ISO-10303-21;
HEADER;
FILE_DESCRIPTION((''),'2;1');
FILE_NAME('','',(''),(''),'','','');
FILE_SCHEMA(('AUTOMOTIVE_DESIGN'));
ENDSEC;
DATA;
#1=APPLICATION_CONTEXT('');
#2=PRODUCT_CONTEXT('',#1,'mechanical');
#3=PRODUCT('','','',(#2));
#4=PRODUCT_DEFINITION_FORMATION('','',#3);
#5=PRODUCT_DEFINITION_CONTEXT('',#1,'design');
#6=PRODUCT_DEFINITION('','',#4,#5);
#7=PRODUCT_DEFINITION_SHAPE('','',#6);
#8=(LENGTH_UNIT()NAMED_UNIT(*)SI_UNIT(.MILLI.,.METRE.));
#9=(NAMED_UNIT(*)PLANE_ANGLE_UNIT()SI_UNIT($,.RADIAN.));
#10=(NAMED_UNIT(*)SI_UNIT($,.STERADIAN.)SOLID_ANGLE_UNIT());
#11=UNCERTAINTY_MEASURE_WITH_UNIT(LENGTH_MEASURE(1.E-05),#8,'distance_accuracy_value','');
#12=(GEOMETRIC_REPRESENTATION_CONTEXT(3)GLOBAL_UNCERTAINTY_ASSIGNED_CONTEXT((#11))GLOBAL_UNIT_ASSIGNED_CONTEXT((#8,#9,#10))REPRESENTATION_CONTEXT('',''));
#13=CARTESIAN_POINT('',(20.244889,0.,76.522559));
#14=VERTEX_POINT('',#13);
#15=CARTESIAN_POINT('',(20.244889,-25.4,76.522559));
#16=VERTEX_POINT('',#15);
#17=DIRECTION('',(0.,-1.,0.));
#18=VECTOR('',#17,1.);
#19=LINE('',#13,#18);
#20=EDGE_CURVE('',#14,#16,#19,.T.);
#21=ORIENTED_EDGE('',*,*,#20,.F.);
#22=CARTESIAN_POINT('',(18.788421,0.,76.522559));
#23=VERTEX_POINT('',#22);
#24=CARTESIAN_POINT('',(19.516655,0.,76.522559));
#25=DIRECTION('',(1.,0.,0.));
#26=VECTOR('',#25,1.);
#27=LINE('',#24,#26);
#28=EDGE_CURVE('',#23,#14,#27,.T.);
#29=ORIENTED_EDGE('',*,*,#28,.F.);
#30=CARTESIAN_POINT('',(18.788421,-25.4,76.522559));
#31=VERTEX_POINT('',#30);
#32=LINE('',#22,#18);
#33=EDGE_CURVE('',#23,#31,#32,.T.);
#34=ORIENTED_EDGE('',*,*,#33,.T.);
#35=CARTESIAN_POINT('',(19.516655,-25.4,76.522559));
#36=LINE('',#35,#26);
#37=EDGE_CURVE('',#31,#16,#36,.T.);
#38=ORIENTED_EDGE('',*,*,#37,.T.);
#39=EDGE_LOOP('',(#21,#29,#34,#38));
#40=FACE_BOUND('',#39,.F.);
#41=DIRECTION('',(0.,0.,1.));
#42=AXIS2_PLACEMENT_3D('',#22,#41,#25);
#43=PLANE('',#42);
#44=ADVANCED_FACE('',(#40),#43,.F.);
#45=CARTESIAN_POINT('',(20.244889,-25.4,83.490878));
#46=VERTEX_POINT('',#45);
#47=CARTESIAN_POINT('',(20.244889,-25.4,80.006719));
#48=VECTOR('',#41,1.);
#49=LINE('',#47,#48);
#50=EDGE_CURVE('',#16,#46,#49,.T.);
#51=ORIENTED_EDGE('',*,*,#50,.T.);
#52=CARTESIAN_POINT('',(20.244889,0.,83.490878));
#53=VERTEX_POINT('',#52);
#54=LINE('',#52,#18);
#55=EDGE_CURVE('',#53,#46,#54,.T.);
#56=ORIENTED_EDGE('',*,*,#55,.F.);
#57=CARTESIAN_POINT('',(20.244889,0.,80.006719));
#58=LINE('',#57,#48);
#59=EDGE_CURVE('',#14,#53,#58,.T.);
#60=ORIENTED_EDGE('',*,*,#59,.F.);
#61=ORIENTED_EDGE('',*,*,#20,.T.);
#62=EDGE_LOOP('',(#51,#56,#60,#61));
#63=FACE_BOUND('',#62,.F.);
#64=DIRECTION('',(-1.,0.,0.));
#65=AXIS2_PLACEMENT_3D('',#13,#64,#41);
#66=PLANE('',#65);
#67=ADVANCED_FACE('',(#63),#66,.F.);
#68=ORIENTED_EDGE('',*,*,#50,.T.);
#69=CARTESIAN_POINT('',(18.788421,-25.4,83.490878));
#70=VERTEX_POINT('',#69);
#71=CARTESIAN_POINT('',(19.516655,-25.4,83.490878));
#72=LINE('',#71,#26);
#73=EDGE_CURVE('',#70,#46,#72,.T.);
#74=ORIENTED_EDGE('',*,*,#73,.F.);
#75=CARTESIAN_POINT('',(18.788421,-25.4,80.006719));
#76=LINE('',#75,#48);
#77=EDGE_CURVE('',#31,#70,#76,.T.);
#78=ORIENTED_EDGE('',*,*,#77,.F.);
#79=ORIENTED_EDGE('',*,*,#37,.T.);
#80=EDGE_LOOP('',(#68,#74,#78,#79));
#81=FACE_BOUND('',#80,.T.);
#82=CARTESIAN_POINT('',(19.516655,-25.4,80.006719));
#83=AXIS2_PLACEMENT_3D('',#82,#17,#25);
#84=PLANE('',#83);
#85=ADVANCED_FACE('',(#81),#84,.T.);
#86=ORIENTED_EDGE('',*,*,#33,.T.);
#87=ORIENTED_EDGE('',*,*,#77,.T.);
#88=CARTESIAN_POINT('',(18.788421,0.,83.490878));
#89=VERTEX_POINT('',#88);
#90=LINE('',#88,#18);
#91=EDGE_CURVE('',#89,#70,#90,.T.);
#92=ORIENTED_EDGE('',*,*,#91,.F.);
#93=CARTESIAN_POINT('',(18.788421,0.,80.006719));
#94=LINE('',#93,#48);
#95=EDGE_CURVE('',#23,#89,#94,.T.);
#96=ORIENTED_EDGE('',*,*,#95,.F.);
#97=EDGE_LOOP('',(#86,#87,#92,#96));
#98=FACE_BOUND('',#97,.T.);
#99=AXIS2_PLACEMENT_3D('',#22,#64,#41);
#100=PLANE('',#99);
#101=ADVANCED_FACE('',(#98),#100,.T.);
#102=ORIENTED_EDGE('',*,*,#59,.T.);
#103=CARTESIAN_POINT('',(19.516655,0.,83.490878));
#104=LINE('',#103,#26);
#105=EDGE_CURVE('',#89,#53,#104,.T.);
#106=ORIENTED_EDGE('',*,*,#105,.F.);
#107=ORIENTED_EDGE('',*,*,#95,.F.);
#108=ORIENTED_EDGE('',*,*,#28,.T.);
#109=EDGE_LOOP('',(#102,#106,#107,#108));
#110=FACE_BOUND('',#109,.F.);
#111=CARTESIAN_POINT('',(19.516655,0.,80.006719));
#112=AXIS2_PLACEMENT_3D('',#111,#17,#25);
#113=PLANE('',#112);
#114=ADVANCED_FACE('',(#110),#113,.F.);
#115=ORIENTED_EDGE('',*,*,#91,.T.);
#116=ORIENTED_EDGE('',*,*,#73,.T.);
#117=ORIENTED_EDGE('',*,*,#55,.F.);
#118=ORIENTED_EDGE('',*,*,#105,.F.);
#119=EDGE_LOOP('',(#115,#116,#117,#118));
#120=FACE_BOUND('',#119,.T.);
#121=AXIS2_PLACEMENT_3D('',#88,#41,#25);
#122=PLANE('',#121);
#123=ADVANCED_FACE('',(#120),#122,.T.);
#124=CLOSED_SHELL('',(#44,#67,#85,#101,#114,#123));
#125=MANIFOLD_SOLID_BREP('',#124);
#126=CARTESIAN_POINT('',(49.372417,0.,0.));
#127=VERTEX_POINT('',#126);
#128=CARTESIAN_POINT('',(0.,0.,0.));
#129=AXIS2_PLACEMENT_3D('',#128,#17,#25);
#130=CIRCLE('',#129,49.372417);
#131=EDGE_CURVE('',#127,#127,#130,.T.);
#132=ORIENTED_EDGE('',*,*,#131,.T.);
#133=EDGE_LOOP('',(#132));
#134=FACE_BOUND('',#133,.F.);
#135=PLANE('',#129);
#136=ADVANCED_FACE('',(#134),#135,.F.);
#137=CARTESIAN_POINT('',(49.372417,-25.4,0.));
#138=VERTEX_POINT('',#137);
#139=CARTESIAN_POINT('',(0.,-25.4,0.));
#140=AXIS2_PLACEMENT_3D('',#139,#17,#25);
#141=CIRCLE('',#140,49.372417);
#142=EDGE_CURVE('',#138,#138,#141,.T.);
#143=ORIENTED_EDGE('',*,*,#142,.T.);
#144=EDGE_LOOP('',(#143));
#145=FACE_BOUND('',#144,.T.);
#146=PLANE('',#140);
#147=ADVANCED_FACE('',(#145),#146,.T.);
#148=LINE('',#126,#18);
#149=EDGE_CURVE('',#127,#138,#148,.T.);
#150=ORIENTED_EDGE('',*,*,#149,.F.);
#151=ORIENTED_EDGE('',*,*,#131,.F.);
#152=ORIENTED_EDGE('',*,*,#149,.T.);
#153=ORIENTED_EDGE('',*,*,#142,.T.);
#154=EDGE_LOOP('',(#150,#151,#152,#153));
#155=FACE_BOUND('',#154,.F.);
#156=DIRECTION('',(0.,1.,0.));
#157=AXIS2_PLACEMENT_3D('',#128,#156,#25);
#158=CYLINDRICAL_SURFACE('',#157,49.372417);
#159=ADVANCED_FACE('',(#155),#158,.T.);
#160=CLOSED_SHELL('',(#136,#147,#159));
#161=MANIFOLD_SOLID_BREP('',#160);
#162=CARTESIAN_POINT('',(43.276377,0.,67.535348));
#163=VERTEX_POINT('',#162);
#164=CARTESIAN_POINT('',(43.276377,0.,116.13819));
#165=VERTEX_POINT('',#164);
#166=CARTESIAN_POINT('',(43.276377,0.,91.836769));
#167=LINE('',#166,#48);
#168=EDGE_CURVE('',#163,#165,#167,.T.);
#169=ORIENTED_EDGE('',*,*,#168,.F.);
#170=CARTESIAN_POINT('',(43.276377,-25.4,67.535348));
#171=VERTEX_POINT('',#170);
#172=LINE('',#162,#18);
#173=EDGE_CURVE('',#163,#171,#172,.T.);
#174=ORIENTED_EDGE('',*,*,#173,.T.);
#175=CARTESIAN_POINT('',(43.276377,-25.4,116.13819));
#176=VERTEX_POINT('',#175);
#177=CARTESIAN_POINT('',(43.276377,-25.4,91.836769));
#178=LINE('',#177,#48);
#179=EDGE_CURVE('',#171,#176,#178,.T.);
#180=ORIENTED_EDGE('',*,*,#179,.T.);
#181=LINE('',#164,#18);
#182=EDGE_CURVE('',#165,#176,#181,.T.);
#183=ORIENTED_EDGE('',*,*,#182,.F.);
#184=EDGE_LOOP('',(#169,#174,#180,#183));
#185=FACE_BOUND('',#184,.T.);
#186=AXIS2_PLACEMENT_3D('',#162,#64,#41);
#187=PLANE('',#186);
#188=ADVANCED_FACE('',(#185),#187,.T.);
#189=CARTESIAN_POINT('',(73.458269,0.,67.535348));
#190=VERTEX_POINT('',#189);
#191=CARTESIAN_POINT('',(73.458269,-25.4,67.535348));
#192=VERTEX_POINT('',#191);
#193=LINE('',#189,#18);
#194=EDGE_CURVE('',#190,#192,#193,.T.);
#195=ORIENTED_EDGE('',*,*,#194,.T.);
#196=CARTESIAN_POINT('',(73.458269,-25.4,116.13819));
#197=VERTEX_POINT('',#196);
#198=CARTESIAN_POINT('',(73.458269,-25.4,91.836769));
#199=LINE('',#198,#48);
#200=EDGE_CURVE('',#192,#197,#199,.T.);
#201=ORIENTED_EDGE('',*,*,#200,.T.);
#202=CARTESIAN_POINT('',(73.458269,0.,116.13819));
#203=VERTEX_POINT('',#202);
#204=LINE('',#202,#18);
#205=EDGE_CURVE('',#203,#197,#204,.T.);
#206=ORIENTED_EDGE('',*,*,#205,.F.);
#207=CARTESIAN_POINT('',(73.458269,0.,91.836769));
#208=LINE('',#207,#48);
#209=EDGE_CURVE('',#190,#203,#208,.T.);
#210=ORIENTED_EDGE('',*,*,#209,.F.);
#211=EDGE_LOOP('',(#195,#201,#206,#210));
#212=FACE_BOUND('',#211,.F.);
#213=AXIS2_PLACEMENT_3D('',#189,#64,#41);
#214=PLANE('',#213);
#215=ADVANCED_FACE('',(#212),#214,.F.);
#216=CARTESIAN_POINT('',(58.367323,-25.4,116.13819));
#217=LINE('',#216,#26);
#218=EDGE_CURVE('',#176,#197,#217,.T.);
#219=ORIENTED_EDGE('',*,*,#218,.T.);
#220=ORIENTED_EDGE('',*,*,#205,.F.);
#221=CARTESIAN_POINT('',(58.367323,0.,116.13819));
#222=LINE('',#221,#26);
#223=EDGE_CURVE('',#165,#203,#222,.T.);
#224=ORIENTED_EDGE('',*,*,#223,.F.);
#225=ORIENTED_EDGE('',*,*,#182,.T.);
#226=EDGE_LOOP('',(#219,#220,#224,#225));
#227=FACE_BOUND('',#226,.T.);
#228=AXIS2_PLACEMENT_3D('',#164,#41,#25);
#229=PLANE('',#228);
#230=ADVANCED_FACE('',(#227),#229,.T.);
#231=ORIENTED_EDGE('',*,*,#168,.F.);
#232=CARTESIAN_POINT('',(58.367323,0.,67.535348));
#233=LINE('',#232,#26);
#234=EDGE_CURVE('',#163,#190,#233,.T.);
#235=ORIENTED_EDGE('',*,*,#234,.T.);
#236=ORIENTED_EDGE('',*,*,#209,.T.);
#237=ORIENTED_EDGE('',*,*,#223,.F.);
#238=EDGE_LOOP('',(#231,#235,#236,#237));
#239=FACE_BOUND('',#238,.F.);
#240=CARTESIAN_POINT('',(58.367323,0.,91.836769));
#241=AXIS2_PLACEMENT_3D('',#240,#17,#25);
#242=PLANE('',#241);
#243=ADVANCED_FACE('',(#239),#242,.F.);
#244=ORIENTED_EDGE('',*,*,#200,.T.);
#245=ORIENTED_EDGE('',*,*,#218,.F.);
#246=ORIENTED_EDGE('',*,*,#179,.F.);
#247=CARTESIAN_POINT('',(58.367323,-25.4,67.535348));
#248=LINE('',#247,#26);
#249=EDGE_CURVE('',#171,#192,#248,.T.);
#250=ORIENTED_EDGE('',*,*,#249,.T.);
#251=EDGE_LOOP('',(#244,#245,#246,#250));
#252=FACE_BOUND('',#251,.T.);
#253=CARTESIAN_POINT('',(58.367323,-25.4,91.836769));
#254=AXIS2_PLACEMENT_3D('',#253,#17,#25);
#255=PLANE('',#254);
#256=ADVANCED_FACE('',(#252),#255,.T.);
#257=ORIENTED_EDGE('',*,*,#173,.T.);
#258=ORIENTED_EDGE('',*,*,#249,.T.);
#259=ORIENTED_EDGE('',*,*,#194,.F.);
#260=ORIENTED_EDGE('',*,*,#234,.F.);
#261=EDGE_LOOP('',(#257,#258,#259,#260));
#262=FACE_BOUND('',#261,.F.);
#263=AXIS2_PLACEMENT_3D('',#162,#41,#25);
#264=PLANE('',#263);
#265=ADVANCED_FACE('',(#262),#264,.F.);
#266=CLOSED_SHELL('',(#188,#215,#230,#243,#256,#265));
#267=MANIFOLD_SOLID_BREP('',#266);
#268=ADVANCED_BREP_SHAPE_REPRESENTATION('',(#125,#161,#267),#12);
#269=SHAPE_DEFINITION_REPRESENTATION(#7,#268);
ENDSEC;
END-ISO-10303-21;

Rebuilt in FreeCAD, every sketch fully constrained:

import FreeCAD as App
import Part
import Sketcher

V = App.Vector
Q = App.Units.Quantity


def add_polygon(sketch, points):
    """Adds a closed chain of lines whose ends are joined by coincident constraints."""
    first, n = sketch.GeometryCount, len(points)
    for a, b in zip(points, points[1:] + points[:1]):
        sketch.addGeometry(Part.LineSegment(App.Vector(*a, 0), App.Vector(*b, 0)), False)
    for i in range(n):
        sketch.addConstraint(Sketcher.Constraint("Coincident", first + i, 2, first + (i + 1) % n, 1))

doc = App.newDocument("Part")
body = doc.addObject("PartDesign::Body", "Body")
body.AllowCompound = True

# Sketch on XZ plane
sketch1 = body.newObject("Sketcher::SketchObject", "Sketch")
sketch1.AttachmentSupport = (doc.getObject("XZ_Plane"), [""])
sketch1.MapMode = "FlatFace"
add_polygon(sketch1, [(18.788421, 83.490878), (18.788421, 76.522559), (20.244889, 76.522559), (20.244889, 83.490878)])  # lines 0-3
add_polygon(sketch1, [(43.276377, 116.13819), (43.276377, 67.535348), (73.458269, 67.535348), (73.458269, 116.13819)])  # lines 4-7
sketch1.addGeometry(Part.Circle(V(0, 0, 0), V(0, 0, 1), 49.372417), False)  # 8
sketch1.addConstraint(Sketcher.Constraint("Vertical", 0))
sketch1.addConstraint(Sketcher.Constraint("Horizontal", 1))
sketch1.addConstraint(Sketcher.Constraint("Vertical", 2))
sketch1.addConstraint(Sketcher.Constraint("Horizontal", 3))
sketch1.addConstraint(Sketcher.Constraint("Vertical", 4))
sketch1.addConstraint(Sketcher.Constraint("Horizontal", 5))
sketch1.addConstraint(Sketcher.Constraint("Vertical", 6))
sketch1.addConstraint(Sketcher.Constraint("Horizontal", 7))
sketch1.addConstraint(Sketcher.Constraint("Coincident", 8, 3, -1, 1))
sketch1.addConstraint(Sketcher.Constraint("Diameter", 8, 98.744834))
sketch1.addConstraint(Sketcher.Constraint("DistanceX", 1, 1, 1, 2, 1.456469))
sketch1.addConstraint(Sketcher.Constraint("DistanceY", 0, 2, 0, 1, 6.968319))
sketch1.addConstraint(Sketcher.Constraint("DistanceY", 4, 2, 4, 1, 48.602842))
sketch1.addConstraint(Sketcher.Constraint("DistanceX", 5, 1, 5, 2, 30.181892))
sketch1.addConstraint(Sketcher.Constraint("DistanceX", -1, 1, 0, 2, 18.788421))
sketch1.addConstraint(Sketcher.Constraint("DistanceY", -1, 1, 0, 2, 76.522559))
sketch1.addConstraint(Sketcher.Constraint("DistanceY", -1, 1, 4, 2, 67.535348))
sketch1.addConstraint(Sketcher.Constraint("DistanceX", -1, 1, 5, 2, 73.458269))
pad1 = body.newObject("PartDesign::Pad", "Pad")
pad1.Profile = sketch1
pad1.Length = Q("1 in")

doc.recompute()
